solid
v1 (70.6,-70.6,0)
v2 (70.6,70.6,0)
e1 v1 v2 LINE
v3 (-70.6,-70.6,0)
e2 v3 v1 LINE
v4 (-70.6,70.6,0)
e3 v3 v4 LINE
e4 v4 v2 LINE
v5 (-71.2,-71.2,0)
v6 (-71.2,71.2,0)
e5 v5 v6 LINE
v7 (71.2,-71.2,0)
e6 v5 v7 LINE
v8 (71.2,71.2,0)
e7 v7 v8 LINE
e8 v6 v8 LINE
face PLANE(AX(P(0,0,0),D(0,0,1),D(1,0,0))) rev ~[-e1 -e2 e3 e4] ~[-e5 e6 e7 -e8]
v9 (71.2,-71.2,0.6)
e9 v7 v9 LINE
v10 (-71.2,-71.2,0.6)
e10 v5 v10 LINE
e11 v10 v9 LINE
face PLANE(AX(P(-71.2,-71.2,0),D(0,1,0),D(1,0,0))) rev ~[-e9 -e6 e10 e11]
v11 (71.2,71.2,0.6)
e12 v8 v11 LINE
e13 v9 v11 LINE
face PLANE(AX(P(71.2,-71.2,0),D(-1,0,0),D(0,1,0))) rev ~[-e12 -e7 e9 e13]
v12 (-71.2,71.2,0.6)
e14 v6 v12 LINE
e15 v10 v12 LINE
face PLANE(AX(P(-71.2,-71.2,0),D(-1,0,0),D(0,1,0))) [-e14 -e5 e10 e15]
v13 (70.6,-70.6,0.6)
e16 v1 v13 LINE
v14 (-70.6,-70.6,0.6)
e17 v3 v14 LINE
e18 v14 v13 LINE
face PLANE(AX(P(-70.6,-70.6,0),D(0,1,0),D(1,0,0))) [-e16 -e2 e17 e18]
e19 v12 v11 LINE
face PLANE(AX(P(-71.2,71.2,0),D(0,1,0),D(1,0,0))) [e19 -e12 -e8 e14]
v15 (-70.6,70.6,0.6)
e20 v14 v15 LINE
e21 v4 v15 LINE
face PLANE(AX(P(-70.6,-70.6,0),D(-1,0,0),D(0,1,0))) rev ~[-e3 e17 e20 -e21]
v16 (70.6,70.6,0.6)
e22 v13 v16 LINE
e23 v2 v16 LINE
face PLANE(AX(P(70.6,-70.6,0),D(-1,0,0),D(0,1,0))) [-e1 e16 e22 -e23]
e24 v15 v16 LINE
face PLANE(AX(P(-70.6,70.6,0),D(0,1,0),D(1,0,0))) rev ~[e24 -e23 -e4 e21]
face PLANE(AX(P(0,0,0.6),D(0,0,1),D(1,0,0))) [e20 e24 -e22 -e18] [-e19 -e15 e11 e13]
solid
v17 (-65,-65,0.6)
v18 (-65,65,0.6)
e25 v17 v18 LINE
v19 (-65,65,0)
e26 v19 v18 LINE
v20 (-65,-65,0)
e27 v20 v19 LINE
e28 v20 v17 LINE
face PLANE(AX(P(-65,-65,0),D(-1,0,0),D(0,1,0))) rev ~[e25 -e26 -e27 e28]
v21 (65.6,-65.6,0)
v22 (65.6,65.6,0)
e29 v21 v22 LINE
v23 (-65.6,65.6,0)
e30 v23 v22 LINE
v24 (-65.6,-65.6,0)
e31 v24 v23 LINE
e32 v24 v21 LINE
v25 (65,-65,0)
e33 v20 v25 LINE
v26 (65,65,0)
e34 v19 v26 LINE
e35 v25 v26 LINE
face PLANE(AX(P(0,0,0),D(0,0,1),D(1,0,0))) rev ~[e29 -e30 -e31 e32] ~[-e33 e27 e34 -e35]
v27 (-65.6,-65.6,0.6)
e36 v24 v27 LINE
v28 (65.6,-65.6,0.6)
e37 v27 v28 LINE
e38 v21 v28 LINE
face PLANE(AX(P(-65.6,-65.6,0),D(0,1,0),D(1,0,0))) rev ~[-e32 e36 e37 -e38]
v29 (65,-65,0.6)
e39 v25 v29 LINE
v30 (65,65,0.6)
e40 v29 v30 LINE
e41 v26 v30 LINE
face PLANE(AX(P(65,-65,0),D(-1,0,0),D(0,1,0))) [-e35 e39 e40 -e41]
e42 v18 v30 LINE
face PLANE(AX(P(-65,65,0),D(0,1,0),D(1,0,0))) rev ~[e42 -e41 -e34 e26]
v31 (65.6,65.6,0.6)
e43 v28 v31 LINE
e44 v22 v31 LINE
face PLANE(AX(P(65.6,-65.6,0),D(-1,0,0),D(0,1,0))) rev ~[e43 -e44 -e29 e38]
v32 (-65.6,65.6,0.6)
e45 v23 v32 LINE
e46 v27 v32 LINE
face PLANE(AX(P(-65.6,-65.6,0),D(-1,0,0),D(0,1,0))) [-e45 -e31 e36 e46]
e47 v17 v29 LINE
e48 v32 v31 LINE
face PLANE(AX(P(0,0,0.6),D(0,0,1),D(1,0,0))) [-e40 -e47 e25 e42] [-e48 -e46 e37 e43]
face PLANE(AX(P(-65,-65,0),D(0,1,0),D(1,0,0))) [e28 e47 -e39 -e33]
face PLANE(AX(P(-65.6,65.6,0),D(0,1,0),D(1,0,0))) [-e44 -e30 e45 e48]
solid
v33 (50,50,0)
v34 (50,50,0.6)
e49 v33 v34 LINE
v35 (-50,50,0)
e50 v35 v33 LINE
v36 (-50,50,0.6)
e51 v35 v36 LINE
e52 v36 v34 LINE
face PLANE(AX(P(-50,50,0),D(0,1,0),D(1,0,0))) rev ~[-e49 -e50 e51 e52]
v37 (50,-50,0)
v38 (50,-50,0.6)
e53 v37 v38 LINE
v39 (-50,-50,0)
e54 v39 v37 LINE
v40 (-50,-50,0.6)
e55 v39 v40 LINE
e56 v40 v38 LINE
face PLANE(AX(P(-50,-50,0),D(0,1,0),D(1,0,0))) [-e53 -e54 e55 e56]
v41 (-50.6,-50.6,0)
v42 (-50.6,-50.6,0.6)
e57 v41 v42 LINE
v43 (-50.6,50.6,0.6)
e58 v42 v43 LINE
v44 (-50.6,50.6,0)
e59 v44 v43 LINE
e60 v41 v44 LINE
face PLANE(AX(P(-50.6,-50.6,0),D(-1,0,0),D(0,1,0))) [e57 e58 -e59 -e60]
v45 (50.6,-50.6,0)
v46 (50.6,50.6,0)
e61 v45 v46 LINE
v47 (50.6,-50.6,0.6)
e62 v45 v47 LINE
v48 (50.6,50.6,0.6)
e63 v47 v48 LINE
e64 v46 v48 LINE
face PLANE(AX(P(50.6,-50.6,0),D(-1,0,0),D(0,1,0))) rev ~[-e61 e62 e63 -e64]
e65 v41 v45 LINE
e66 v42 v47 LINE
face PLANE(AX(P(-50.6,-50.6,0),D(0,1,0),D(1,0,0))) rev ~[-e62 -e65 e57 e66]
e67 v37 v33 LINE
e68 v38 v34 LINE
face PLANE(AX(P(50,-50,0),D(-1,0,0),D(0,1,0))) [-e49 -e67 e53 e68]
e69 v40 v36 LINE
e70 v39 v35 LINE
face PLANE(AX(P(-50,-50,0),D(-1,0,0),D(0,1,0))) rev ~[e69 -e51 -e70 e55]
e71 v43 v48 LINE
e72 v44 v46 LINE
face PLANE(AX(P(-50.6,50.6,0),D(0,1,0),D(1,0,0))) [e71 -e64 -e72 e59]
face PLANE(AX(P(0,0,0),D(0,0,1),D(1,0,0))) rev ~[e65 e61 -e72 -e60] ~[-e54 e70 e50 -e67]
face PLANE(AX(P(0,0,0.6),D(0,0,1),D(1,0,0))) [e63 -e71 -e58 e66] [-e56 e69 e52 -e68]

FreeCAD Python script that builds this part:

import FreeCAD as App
import Part
import Sketcher

V = App.Vector


def add_polygon(sketch, points):
    """Adds a closed chain of lines whose ends are joined by coincident constraints."""
    first, n = sketch.GeometryCount, len(points)
    for a, b in zip(points, points[1:] + points[:1]):
        sketch.addGeometry(Part.LineSegment(App.Vector(*a, 0), App.Vector(*b, 0)), False)
    for i in range(n):
        sketch.addConstraint(Sketcher.Constraint("Coincident", first + i, 2, first + (i + 1) % n, 1))

doc = App.newDocument("Part")
body = doc.addObject("PartDesign::Body", "Body")

# Sketch on XY plane
sketch1 = doc.addObject("Sketcher::SketchObject", "Sketch")
body.addObject(sketch1)
sketch1.AttachmentSupport = (doc.XY_Plane, [""])
sketch1.MapMode = "FlatFace"
add_polygon(sketch1, [(-71, 71), (-71, -71), (71, -71), (71, 71)])  # lines 0-3
add_polygon(sketch1, [(71, -71), (-71, -71), (-71, 71), (71, 71)])  # lines 4-7
sketch1.addConstraint([
    Sketcher.Constraint("Vertical", 0),
    Sketcher.Constraint("Horizontal", 1),
    Sketcher.Constraint("Vertical", 2),
    Sketcher.Constraint("Horizontal", 3),
    Sketcher.Constraint("Horizontal", 4),
    Sketcher.Constraint("Vertical", 5),
    Sketcher.Constraint("Horizontal", 6),
    Sketcher.Constraint("Vertical", 7),
    Sketcher.Constraint("Symmetric", 0, 2, 2, 2, -1, 1),
    Sketcher.Constraint("Symmetric", 4, 2, 6, 2, -1, 1),
    Sketcher.Constraint("Equal", 3, 0),
    Sketcher.Constraint("Equal", 6, 5),
    Sketcher.Constraint("DistanceX", 1, 1, 1, 2, 142.4),
    Sketcher.Constraint("DistanceX", 4, 2, 4, 1, 141.2),
])
pad1 = doc.addObject("PartDesign::Pad", "Pad")
body.addObject(pad1)
pad1.Profile = sketch1
pad1.Length = 0.6
body2 = doc.addObject("PartDesign::Body", "Body001")

# Sketch on XY plane
sketch2 = doc.addObject("Sketcher::SketchObject", "Sketch001")
body2.addObject(sketch2)
sketch2.AttachmentSupport = (doc.getObject("XY_Plane001"), [""])
sketch2.MapMode = "FlatFace"
add_polygon(sketch2, [(-51, 51), (-51, -51), (51, -51), (51, 51)])  # lines 0-3
add_polygon(sketch2, [(50, -50), (-50, -50), (-50, 50), (50, 50)])  # lines 4-7
sketch2.addConstraint([
    Sketcher.Constraint("Vertical", 0),
    Sketcher.Constraint("Horizontal", 1),
    Sketcher.Constraint("Vertical", 2),
    Sketcher.Constraint("Horizontal", 3),
    Sketcher.Constraint("Horizontal", 4),
    Sketcher.Constraint("Vertical", 5),
    Sketcher.Constraint("Horizontal", 6),
    Sketcher.Constraint("Vertical", 7),
    Sketcher.Constraint("Symmetric", 0, 2, 2, 2, -1, 1),
    Sketcher.Constraint("Symmetric", 4, 2, 6, 2, -1, 1),
    Sketcher.Constraint("Equal", 3, 0),
    Sketcher.Constraint("Equal", 6, 5),
    Sketcher.Constraint("DistanceX", 4, 2, 4, 1, 100.0),
    Sketcher.Constraint("DistanceX", 1, 1, 1, 2, 101.2),
])
pad2 = doc.addObject("PartDesign::Pad", "Pad001")
body2.addObject(pad2)
pad2.Profile = sketch2
pad2.Length = 0.6
body3 = doc.addObject("PartDesign::Body", "Body002")

# Sketch on XY plane
sketch3 = doc.addObject("Sketcher::SketchObject", "Sketch002")
body3.addObject(sketch3)
sketch3.AttachmentSupport = (doc.getObject("XY_Plane002"), [""])
sketch3.MapMode = "FlatFace"
add_polygon(sketch3, [(-66, 66), (-66, -66), (66, -66), (66, 66)])  # lines 0-3
add_polygon(sketch3, [(65, -65), (-65, -65), (-65, 65), (65, 65)])  # lines 4-7
sketch3.addConstraint([
    Sketcher.Constraint("Vertical", 0),
    Sketcher.Constraint("Horizontal", 1),
    Sketcher.Constraint("Vertical", 2),
    Sketcher.Constraint("Horizontal", 3),
    Sketcher.Constraint("Horizontal", 4),
    Sketcher.Constraint("Vertical", 5),
    Sketcher.Constraint("Horizontal", 6),
    Sketcher.Constraint("Vertical", 7),
    Sketcher.Constraint("Symmetric", 0, 2, 2, 2, -1, 1),
    Sketcher.Constraint("Symmetric", 4, 2, 6, 2, -1, 1),
    Sketcher.Constraint("Equal", 3, 0),
    Sketcher.Constraint("Equal", 6, 5),
    Sketcher.Constraint("DistanceX", 4, 2, 4, 1, 130.0),
    Sketcher.Constraint("DistanceX", 1, 1, 1, 2, 131.2),
])
pad3 = doc.addObject("PartDesign::Pad", "Pad002")
body3.addObject(pad3)
pad3.Profile = sketch3
pad3.Length = 0.6

doc.recompute()
